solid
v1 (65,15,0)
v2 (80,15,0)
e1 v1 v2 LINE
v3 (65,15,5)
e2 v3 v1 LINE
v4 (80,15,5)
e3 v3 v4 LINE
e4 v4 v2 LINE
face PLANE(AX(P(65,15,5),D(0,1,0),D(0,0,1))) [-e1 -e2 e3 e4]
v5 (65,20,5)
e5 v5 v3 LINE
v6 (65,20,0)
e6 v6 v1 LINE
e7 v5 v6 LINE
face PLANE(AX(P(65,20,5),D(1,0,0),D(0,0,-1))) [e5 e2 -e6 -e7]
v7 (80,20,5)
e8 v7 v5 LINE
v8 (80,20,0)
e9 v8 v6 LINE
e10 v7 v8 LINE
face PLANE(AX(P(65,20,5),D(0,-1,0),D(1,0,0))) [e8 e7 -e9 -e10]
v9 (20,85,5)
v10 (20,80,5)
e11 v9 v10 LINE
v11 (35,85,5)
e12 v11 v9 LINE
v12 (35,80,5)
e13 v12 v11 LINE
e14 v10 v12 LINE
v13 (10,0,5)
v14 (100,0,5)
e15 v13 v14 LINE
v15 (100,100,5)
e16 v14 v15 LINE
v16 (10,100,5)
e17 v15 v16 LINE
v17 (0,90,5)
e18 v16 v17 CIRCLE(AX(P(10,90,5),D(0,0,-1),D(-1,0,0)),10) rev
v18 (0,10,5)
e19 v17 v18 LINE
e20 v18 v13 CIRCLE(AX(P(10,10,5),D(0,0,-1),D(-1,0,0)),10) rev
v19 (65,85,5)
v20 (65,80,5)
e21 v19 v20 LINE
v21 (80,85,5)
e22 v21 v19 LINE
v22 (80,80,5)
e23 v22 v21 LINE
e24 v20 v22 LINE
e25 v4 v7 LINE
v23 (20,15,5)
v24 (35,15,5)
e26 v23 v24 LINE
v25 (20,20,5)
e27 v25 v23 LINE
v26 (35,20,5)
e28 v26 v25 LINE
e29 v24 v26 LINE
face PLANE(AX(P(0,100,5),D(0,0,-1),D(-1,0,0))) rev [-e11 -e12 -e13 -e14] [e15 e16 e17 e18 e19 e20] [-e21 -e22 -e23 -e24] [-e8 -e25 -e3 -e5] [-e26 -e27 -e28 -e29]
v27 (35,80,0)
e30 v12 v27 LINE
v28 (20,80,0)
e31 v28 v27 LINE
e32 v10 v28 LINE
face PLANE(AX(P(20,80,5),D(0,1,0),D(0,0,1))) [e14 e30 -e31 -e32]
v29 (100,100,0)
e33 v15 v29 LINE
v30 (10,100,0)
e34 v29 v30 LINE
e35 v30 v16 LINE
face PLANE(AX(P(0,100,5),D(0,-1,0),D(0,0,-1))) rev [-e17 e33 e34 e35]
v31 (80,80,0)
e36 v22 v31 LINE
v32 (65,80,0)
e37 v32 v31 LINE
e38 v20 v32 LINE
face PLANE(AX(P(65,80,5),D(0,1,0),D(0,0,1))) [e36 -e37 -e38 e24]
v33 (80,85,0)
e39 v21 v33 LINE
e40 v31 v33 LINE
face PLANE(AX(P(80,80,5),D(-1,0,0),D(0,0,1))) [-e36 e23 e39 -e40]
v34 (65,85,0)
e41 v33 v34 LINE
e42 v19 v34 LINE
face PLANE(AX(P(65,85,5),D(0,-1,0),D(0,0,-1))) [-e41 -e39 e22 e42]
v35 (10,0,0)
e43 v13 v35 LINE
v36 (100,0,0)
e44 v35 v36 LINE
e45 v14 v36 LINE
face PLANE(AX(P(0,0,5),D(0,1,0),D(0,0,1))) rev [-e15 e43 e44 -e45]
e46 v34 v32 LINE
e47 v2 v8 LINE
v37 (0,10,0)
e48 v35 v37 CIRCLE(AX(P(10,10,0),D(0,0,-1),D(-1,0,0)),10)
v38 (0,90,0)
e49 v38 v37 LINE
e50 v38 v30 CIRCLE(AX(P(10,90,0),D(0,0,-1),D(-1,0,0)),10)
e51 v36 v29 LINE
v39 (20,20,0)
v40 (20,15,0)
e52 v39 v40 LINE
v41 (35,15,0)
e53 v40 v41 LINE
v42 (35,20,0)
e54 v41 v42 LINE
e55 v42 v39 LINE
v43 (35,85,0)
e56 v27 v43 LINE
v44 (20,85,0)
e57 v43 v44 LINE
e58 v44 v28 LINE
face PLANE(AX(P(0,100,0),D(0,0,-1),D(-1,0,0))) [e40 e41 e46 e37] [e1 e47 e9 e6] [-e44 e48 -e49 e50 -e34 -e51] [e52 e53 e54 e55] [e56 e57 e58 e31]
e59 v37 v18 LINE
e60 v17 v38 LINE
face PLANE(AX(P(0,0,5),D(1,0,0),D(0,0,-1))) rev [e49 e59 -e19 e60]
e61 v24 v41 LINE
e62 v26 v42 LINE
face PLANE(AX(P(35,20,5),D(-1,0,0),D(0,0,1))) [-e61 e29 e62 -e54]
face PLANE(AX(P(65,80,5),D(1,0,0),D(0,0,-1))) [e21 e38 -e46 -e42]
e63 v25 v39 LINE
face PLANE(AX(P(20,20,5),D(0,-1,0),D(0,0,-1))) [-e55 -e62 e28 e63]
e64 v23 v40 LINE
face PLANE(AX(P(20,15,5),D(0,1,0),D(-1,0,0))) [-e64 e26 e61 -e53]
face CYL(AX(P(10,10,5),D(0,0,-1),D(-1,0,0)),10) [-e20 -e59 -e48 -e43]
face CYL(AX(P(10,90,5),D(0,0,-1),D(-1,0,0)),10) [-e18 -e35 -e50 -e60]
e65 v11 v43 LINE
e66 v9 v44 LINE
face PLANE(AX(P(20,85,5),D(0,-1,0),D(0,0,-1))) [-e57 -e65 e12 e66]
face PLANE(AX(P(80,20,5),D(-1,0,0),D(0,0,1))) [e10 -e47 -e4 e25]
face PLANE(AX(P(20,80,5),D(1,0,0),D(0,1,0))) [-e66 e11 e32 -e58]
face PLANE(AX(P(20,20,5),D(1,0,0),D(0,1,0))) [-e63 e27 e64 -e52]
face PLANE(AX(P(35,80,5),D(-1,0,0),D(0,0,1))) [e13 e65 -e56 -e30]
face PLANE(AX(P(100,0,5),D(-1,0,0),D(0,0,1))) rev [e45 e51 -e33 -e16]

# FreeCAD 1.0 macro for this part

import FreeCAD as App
import Part
import Sketcher

V = App.Vector


def edges_at(feature, points):
    """Names of the edges that pass closest to the given points."""
    edges = feature.Shape.Edges
    near = lambda p: min(range(len(edges)), key=lambda i: edges[i].distToShape(Part.Vertex(*p))[0])
    return sorted({f"Edge{near(p) + 1}" for p in points})


def add_polygon(sketch, points):
    """Adds a closed chain of lines whose ends are joined by coincident constraints."""
    first, n = sketch.GeometryCount, len(points)
    for a, b in zip(points, points[1:] + points[:1]):
        sketch.addGeometry(Part.LineSegment(App.Vector(*a, 0), App.Vector(*b, 0)), False)
    for i in range(n):
        sketch.addConstraint(Sketcher.Constraint("Coincident", first + i, 2, first + (i + 1) % n, 1))

doc = App.newDocument("Part")
params = doc.addObject("Spreadsheet::Sheet", "Params")
for row, (alias, value) in enumerate([
    ("sketch1_width", "100 mm"),
    ("sketch1_width2", "15 mm"),
    ("sketch1_height", "5 mm"),
    ("pad1_length", "5 mm"),
    ("fillet_radius", "10 mm"),
], start=1):
    params.set(f"A{row}", alias)
    params.set(f"B{row}", "=" + value)
    params.setAlias(f"B{row}", alias)

body = doc.addObject("PartDesign::Body", "Body")

sketch1 = body.newObject("Sketcher::SketchObject", "Sketch")
sketch1.AttachmentSupport = (doc.getObject("XY_Plane"), [""])
sketch1.MapMode = "FlatFace"
add_polygon(sketch1, [(0, 100), (0, 0), (100, 0), (100, 100)])
add_polygon(sketch1, [(35, 15), (20, 15), (20, 20), (35, 20)])
add_polygon(sketch1, [(80, 15), (65, 15), (65, 20), (80, 20)])
add_polygon(sketch1, [(35, 80), (20, 80), (20, 85), (35, 85)])
add_polygon(sketch1, [(80, 80), (65, 80), (65, 85), (80, 85)])
sketch1.addConstraint([
    Sketcher.Constraint("Vertical", 0),
    Sketcher.Constraint("Horizontal", 1),
    Sketcher.Constraint("Vertical", 2),
    Sketcher.Constraint("Horizontal", 3),
    Sketcher.Constraint("Horizontal", 4),
    Sketcher.Constraint("Vertical", 5),
    Sketcher.Constraint("Horizontal", 6),
    Sketcher.Constraint("Vertical", 7),
    Sketcher.Constraint("Horizontal", 8),
    Sketcher.Constraint("Vertical", 9),
    Sketcher.Constraint("Horizontal", 10),
    Sketcher.Constraint("Vertical", 11),
    Sketcher.Constraint("Horizontal", 12),
    Sketcher.Constraint("Vertical", 13),
    Sketcher.Constraint("Horizontal", 14),
    Sketcher.Constraint("Vertical", 15),
    Sketcher.Constraint("Horizontal", 16),
    Sketcher.Constraint("Vertical", 17),
    Sketcher.Constraint("Horizontal", 18),
    Sketcher.Constraint("Vertical", 19),
    Sketcher.Constraint("Coincident", 0, 2, -1, 1),
    Sketcher.Constraint("Horizontal", 7, 2, 8, 2),
    Sketcher.Constraint("Horizontal", 6, 2, 9, 2),
    Sketcher.Constraint("Horizontal", 15, 2, 16, 2),
    Sketcher.Constraint("Horizontal", 14, 2, 17, 2),
    Sketcher.Constraint("Vertical", 5, 2, 12, 2),
    Sketcher.Constraint("Vertical", 7, 2, 14, 2),
    Sketcher.Constraint("Vertical", 9, 2, 16, 2),
    Sketcher.Constraint("Vertical", 11, 2, 18, 2),
    Sketcher.Constraint("Equal", 6, 8),
    Sketcher.Constraint("Equal", 3, 0),
    Sketcher.Constraint("Equal", 11, 13),
    Sketcher.Constraint("DistanceX", 1, 1, 1, 2, 100.0),
    Sketcher.Constraint("DistanceX", 4, 2, 4, 1, 15.0),
    Sketcher.Constraint("DistanceY", 5, 1, 5, 2, 5.0),
    Sketcher.Constraint("DistanceX", -1, 1, 4, 2, 20.0),
    Sketcher.Constraint("DistanceY", -1, 1, 4, 2, 15.0),
    Sketcher.Constraint("DistanceX", -1, 1, 8, 2, 65.0),
    Sketcher.Constraint("DistanceY", -1, 1, 12, 2, 80.0),
])
sketch1.setExpression("Constraints[52]", "Params.sketch1_width")
sketch1.setExpression("Constraints[53]", "Params.sketch1_width2")
sketch1.setExpression("Constraints[54]", "Params.sketch1_height")
pad1 = body.newObject("PartDesign::Pad", "Pad")
pad1.Profile = sketch1
pad1.setExpression("Length", "Params.pad1_length")
doc.recompute()

fillet = body.newObject("PartDesign::Fillet", "Fillet")
fillet.Base = (pad1, edges_at(pad1, [(0, 100, 2.5), (0, 0, 2.5)]))
fillet.setExpression("Radius", "Params.fillet_radius")

doc.recompute()
